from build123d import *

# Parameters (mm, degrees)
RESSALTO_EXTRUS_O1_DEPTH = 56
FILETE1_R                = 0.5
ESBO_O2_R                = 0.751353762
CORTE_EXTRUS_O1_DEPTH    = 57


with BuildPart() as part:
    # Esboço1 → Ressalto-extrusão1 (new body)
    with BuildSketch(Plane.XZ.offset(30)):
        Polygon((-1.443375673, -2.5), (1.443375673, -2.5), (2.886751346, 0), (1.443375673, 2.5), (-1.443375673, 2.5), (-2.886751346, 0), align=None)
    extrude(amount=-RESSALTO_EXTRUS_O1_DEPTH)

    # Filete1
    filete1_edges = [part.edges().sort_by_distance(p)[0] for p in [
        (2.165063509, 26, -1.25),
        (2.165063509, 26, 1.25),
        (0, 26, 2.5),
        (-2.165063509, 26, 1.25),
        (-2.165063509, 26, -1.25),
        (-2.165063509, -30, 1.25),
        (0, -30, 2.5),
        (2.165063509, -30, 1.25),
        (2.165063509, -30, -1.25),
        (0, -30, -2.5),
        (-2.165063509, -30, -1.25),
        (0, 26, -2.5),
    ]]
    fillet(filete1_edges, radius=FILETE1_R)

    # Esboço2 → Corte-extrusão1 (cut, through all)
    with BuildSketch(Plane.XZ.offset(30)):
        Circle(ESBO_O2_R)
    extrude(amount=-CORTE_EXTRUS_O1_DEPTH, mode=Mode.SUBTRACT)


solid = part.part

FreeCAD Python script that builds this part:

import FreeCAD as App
import Part
import Sketcher

V = App.Vector
Q = App.Units.Quantity


def edges_at(feature, points):
    """Names of the edges that pass closest to the given points."""
    edges = feature.Shape.Edges
    near = lambda p: min(range(len(edges)), key=lambda i: edges[i].distToShape(Part.Vertex(*p))[0])
    return sorted({f"Edge{near(p) + 1}" for p in points})

doc = App.newDocument("Part")
body = doc.addObject("PartDesign::Body", "Body")

sketch1 = body.newObject("Sketcher::SketchObject", "Sketch")
sketch1.AttachmentSupport = (doc.getObject("XZ_Plane"), [""])
sketch1.MapMode = "FlatFace"
sketch1.AttachmentOffset = App.Placement(V(0, 0, 30), App.Rotation())
sketch1.addGeometry([
    Part.LineSegment(V(-1.443376, -2.5, 0), V(1.443376, -2.5, 0)),
    Part.LineSegment(V(1.443376, -2.5, 0), V(2.886751, 0, 0)),
    Part.LineSegment(V(2.886751, 0, 0), V(1.443376, 2.5, 0)),
    Part.LineSegment(V(1.443376, 2.5, 0), V(-1.443376, 2.5, 0)),
    Part.LineSegment(V(-1.443376, 2.5, 0), V(-2.886751, 0, 0)),
    Part.LineSegment(V(-2.886751, 0, 0), V(-1.443376, -2.5, 0)),
], False)
sketch1.addConstraint([
    Sketcher.Constraint("Coincident", 0, 2, 1, 1),
    Sketcher.Constraint("Coincident", 1, 2, 2, 1),
    Sketcher.Constraint("Coincident", 2, 2, 3, 1),
    Sketcher.Constraint("Coincident", 3, 2, 4, 1),
    Sketcher.Constraint("Coincident", 4, 2, 5, 1),
    Sketcher.Constraint("Coincident", 5, 2, 0, 1),
    Sketcher.Constraint("Horizontal", 0),
    Sketcher.Constraint("Horizontal", 3),
    Sketcher.Constraint("Symmetric", 0, 2, 3, 2, -1, 1),
    Sketcher.Constraint("Symmetric", 1, 2, 4, 2, -1, 1),
    Sketcher.Constraint("PointOnObject", 1, 2, -1),
    Sketcher.Constraint("Parallel", 2, 5),
    Sketcher.Constraint("Vertical", 0, 2, 2, 2),
    Sketcher.Constraint("Angle", 1, Q("60 deg")),
    Sketcher.Constraint("DistanceY", 0, 2, 2, 2, 5.0),
    Sketcher.Constraint("DistanceX", 0, 1, 0, 2, 2.886751),
])
pad1 = body.newObject("PartDesign::Pad", "Pad")
pad1.Profile = sketch1
pad1.Length = 56
pad1.Reversed = True
doc.recompute()

fillet = body.newObject("PartDesign::Fillet", "Fillet")
fillet.Base = (pad1, edges_at(pad1, [
    (2.165, 26, -1.25),
    (2.165, 26, 1.25),
    (0, 26, 2.5),
    (-2.165, 26, 1.25),
    (-2.165, 26, -1.25),
    (-2.165, -30, 1.25),
    (0, -30, 2.5),
    (2.165, -30, 1.25),
    (2.165, -30, -1.25),
    (0, -30, -2.5),
    (-2.165, -30, -1.25),
    (0, 26, -2.5),
]))
fillet.Radius = 0.5

sketch2 = body.newObject("Sketcher::SketchObject", "Sketch001")
sketch2.AttachmentSupport = (doc.getObject("XZ_Plane"), [""])
sketch2.MapMode = "FlatFace"
sketch2.AttachmentOffset = App.Placement(V(0, 0, 30), App.Rotation())
sketch2.addGeometry(Part.Circle(V(0, 0, 0), V(0, 0, 1), 0.751354), False)
sketch2.addConstraint([
    Sketcher.Constraint("Coincident", 0, 3, -1, 1),
    Sketcher.Constraint("Diameter", 0, 1.502708),
])
pocket1 = body.newObject("PartDesign::Pocket", "Pocket")
pocket1.Profile = sketch2
pocket1.Type = "ThroughAll"

doc.recompute()
